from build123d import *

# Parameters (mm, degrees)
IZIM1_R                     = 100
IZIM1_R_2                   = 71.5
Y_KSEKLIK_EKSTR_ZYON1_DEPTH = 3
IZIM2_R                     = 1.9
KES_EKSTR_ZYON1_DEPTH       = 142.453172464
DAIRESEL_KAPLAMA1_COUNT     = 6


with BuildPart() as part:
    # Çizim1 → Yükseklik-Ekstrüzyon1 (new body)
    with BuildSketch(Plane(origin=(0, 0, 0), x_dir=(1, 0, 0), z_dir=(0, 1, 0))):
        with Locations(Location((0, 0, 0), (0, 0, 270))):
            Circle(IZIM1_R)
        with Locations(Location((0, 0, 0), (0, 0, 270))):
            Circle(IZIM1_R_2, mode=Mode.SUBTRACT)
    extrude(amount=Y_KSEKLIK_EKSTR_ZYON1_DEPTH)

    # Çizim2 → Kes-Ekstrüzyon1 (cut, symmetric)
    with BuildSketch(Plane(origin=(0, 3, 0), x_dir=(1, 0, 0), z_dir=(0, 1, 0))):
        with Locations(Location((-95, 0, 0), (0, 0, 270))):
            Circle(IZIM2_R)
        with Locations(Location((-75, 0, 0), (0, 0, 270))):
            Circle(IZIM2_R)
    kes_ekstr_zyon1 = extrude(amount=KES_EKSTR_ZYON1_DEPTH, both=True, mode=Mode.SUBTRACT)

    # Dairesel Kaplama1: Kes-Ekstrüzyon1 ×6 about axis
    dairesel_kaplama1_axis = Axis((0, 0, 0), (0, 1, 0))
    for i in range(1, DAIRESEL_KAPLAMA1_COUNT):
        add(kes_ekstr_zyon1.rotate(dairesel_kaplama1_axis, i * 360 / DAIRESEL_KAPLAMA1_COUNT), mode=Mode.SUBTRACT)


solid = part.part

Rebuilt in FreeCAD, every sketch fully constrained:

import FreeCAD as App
import Part
import Sketcher
from FreeCAD import Vector

doc = App.newDocument("Part")
params = doc.addObject("Spreadsheet::Sheet", "Params")
for row, (alias, value) in enumerate([
    ("sketch1_diameter", "200 mm"),
    ("sketch1_diameter2", "143 mm"),
    ("pad1_length", "3 mm"),
    ("sketch2_diameter", "3.8 mm"),
    ("pocket1_length", "284.906345 mm"),
], start=1):
    params.set(f"A{row}", alias)
    params.set(f"B{row}", "=" + value)
    params.setAlias(f"B{row}", alias)

body = doc.addObject("PartDesign::Body", "Body")

sketch1 = body.newObject("Sketcher::SketchObject", "Sketch")
sketch1.AttachmentSupport = (doc.getObject("XZ_Plane"), [""])
sketch1.MapMode = "FlatFace"
sketch1.addGeometry(Part.Circle(Vector(0, 0, 0), Vector(0, 0, 1), 100), False)
sketch1.addGeometry(Part.Circle(Vector(0, 0, 0), Vector(0, 0, 1), 71.5), False)
sketch1.addConstraint(Sketcher.Constraint("Coincident", 0, 3, -1, 1))
sketch1.addConstraint(Sketcher.Constraint("Coincident", 1, 3, -1, 1))
sketch1.addConstraint(Sketcher.Constraint("Diameter", 0, 200.0))
sketch1.addConstraint(Sketcher.Constraint("Diameter", 1, 143.0))
sketch1.setExpression("Constraints[2]", "Params.sketch1_diameter")
sketch1.setExpression("Constraints[3]", "Params.sketch1_diameter2")
pad1 = body.newObject("PartDesign::Pad", "Pad")
pad1.Profile = sketch1
pad1.setExpression("Length", "Params.pad1_length")
pad1.Reversed = True

sketch2 = body.newObject("Sketcher::SketchObject", "Sketch001")
sketch2.AttachmentSupport = (doc.getObject("XZ_Plane"), [""])
sketch2.MapMode = "FlatFace"
sketch2.AttachmentOffset = App.Placement(Vector(0, 0, -3), App.Rotation())
sketch2.addGeometry(Part.Circle(Vector(-95, 0, 0), Vector(0, 0, 1), 1.9), False)
sketch2.addGeometry(Part.Circle(Vector(-75, 0, 0), Vector(0, 0, 1), 1.9), False)
sketch2.addConstraint(Sketcher.Constraint("Equal", 0, 1))
sketch2.addConstraint(Sketcher.Constraint("PointOnObject", 0, 3, -1))
sketch2.addConstraint(Sketcher.Constraint("PointOnObject", 1, 3, -1))
sketch2.addConstraint(Sketcher.Constraint("Diameter", 0, 3.8))
sketch2.addConstraint(Sketcher.Constraint("DistanceX", 0, 3, -1, 1, 95.0))
sketch2.addConstraint(Sketcher.Constraint("DistanceX", 1, 3, -1, 1, 75.0))
sketch2.setExpression("Constraints[3]", "Params.sketch2_diameter")
pocket1 = body.newObject("PartDesign::Pocket", "Pocket")
pocket1.Profile = sketch2
pocket1.setExpression("Length", "Params.pocket1_length")
pocket1.Midplane = True
doc.recompute()

polarpattern = body.newObject("PartDesign::PolarPattern", "PolarPattern")
polarpattern.Originals = [pocket1]
polarpattern.Axis = (doc.getObject("Y_Axis"), [""])
polarpattern.Angle = 360
polarpattern.Occurrences = 6
body.Tip = polarpattern

doc.recompute()
